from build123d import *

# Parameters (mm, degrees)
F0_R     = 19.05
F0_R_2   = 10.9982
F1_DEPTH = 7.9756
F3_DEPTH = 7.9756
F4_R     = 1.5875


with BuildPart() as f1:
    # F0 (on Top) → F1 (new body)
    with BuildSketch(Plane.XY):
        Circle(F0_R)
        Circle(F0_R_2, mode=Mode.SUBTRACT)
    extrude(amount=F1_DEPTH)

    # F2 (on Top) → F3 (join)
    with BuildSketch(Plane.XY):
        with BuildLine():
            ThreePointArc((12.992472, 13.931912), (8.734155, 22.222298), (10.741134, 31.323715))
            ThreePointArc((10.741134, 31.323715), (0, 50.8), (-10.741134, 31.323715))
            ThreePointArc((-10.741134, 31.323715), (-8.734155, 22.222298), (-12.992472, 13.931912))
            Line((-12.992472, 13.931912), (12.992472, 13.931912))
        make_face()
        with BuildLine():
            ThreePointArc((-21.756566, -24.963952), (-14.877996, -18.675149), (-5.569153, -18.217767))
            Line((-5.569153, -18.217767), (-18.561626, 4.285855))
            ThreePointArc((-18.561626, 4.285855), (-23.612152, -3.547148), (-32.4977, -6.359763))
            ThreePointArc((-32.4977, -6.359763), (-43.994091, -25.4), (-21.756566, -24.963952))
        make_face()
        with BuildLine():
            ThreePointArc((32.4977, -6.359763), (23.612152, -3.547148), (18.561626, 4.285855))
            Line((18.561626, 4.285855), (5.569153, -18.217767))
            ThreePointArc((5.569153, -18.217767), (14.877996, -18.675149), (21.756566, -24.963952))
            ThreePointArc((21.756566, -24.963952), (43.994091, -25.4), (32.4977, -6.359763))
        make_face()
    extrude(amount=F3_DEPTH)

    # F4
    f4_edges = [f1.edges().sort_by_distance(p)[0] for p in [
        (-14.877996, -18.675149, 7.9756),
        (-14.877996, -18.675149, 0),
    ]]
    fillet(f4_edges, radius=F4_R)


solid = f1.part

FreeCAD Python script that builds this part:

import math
import FreeCAD as App
import Part
import Sketcher
from FreeCAD import Vector
Q = App.Units.Quantity


def edges_at(feature, points):
    """Names of the edges that pass closest to the given points."""
    edges = feature.Shape.Edges
    near = lambda p: min(range(len(edges)), key=lambda i: edges[i].distToShape(Part.Vertex(*p))[0])
    return sorted({f"Edge{near(p) + 1}" for p in points})

doc = App.newDocument("Part")
body = doc.addObject("PartDesign::Body", "Body")

# Sketch on XY plane
sketch1 = body.newObject("Sketcher::SketchObject", "Sketch")
sketch1.AttachmentSupport = (doc.getObject("XY_Plane"), [""])
sketch1.MapMode = "FlatFace"
sketch1.addGeometry(Part.Circle(Vector(0, 0, 0), Vector(0, 0, 1), 19.05), False)
sketch1.addGeometry(Part.Circle(Vector(0, 0, 0), Vector(0, 0, 1), 10.9982), False)
sketch1.addConstraint(Sketcher.Constraint("Coincident", 0, 3, -1, 1))
sketch1.addConstraint(Sketcher.Constraint("Coincident", 1, 3, -1, 1))
sketch1.addConstraint(Sketcher.Constraint("Diameter", 0, Q("1.5 in")))
sketch1.addConstraint(Sketcher.Constraint("Diameter", 1, Q("0.866 in")))
pad1 = body.newObject("PartDesign::Pad", "Pad")
pad1.Profile = sketch1
pad1.Length = Q("0.314 in")

# Sketch on XY plane
sketch2 = body.newObject("Sketcher::SketchObject", "Sketch001")
sketch2.AttachmentSupport = (doc.getObject("XY_Plane"), [""])
sketch2.MapMode = "FlatFace"
sketch2.addGeometry(Part.ArcOfCircle(Part.Circle(Vector(22.369933, 23.987425, 0), Vector(0, 0, 1), 13.74955), math.radians(147.753299), math.radians(226.998343)), False)
sketch2.addGeometry(Part.ArcOfCircle(Part.Circle(Vector(0, 38.1, 0), Vector(0, 0, 1), 12.7), math.radians(-32.246697), math.radians(212.246697)), False)
sketch2.addGeometry(Part.ArcOfCircle(Part.Circle(Vector(-22.369933, 23.987425, 0), Vector(0, 0, 1), 13.74955), math.radians(-46.998343), math.radians(32.246701)), False)
sketch2.addGeometry(Part.LineSegment(Vector(-12.992472, 13.931912, 0), Vector(12.992472, 13.931912, 0)), False)
sketch2.addGeometry(Part.ArcOfCircle(Part.Circle(Vector(-9.588752, -31.366645, 0), Vector(0, 0, 1), 13.749552), math.radians(73.001659), math.radians(152.246694)), False)
sketch2.addGeometry(Part.LineSegment(Vector(-5.569153, -18.217767, 0), Vector(-18.561626, 4.285855, 0)), False)
sketch2.addGeometry(Part.ArcOfCircle(Part.Circle(Vector(-31.958688, 7.37922, 0), Vector(0, 0, 1), 13.749552), math.radians(-92.246692), math.radians(-13.001663)), False)
sketch2.addGeometry(Part.ArcOfCircle(Part.Circle(Vector(-32.995568, -19.05, 0), Vector(0, 0, 1), 12.7), math.radians(87.753302), math.radians(332.2467)), False)
sketch2.addGeometry(Part.ArcOfCircle(Part.Circle(Vector(31.958688, 7.37922, 0), Vector(0, 0, 1), 13.749552), math.radians(-166.998337), math.radians(-87.753308)), False)
sketch2.addGeometry(Part.LineSegment(Vector(18.561626, 4.285855, 0), Vector(5.569153, -18.217767, 0)), False)
sketch2.addGeometry(Part.ArcOfCircle(Part.Circle(Vector(9.588752, -31.366645, 0), Vector(0, 0, 1), 13.749552), math.radians(27.753306), math.radians(106.998341)), False)
sketch2.addGeometry(Part.ArcOfCircle(Part.Circle(Vector(32.995568, -19.05, 0), Vector(0, 0, 1), 12.7), math.radians(-152.2467), math.radians(92.246698)), False)
sketch2.addConstraint(Sketcher.Constraint("Tangent", 0, 1, 1, 1))
sketch2.addConstraint(Sketcher.Constraint("Tangent", 1, 2, 2, 2))
sketch2.addConstraint(Sketcher.Constraint("Coincident", 2, 1, 3, 1))
sketch2.addConstraint(Sketcher.Constraint("Coincident", 3, 2, 0, 2))
sketch2.addConstraint(Sketcher.Constraint("Coincident", 4, 1, 5, 1))
sketch2.addConstraint(Sketcher.Constraint("Coincident", 5, 2, 6, 2))
sketch2.addConstraint(Sketcher.Constraint("Tangent", 6, 1, 7, 1))
sketch2.addConstraint(Sketcher.Constraint("Tangent", 7, 2, 4, 2))
sketch2.addConstraint(Sketcher.Constraint("Coincident", 8, 1, 9, 1))
sketch2.addConstraint(Sketcher.Constraint("Coincident", 9, 2, 10, 2))
sketch2.addConstraint(Sketcher.Constraint("Tangent", 10, 1, 11, 1))
sketch2.addConstraint(Sketcher.Constraint("Tangent", 11, 2, 8, 2))
sketch2.addConstraint(Sketcher.Constraint("Horizontal", 3))
sketch2.addConstraint(Sketcher.Constraint("Equal", 0, 2))
sketch2.addConstraint(Sketcher.Constraint("Equal", 2, 4))
sketch2.addConstraint(Sketcher.Constraint("Equal", 4, 6))
sketch2.addConstraint(Sketcher.Constraint("Equal", 1, 7))
sketch2.addConstraint(Sketcher.Constraint("Equal", 6, 8))
sketch2.addConstraint(Sketcher.Constraint("Equal", 8, 10))
sketch2.addConstraint(Sketcher.Constraint("Equal", 7, 11))
sketch2.addConstraint(Sketcher.Constraint("Symmetric", 0, 3, 2, 3, -2))
sketch2.addConstraint(Sketcher.Constraint("Symmetric", 6, 3, 8, 3, -2))
sketch2.addConstraint(Sketcher.Constraint("Symmetric", 4, 3, 10, 3, -2))
sketch2.addConstraint(Sketcher.Constraint("Horizontal", 5, 2, 8, 1))
sketch2.addConstraint(Sketcher.Constraint("Horizontal", 4, 1, 9, 2))
sketch2.addConstraint(Sketcher.Constraint("Radius", 1, Q("0.5 in")))
sketch2.addConstraint(Sketcher.Constraint("Angle", 5, Q("120.000001 deg")))
sketch2.addConstraint(Sketcher.Constraint("DistanceY", -1, 1, 1, 3, Q("1.5 in")))
sketch2.addConstraint(Sketcher.Constraint("DistanceY", 7, 3, -1, 1, Q("0.75 in")))
sketch2.addConstraint(Sketcher.Constraint("Radius", 0, Q("13.74955 mm")))
sketch2.addConstraint(Sketcher.Constraint("DistanceX", 6, 1, -1, 1, Q("32.4977 mm")))
sketch2.addConstraint(Sketcher.Constraint("DistanceX", 7, 3, 0, 3, Q("55.365502 mm")))
sketch2.addConstraint(Sketcher.Constraint("DistanceX", 0, 1, 0, 3, Q("11.628799 mm")))
sketch2.addConstraint(Sketcher.Constraint("DistanceX", 4, 3, 4, 1, Q("4.019599 mm")))
sketch2.addConstraint(Sketcher.Constraint("DistanceX", 3, 1, 3, 2, Q("25.984944 mm")))
sketch2.addConstraint(Sketcher.Constraint("DistanceY", 7, 2, -1, 1, Q("24.963952 mm")))
pad2 = body.newObject("PartDesign::Pad", "Pad001")
pad2.Profile = sketch2
pad2.Length = Q("0.314 in")
doc.recompute()

fillet = body.newObject("PartDesign::Fillet", "Fillet")
fillet.Base = (pad2, edges_at(pad2, [(-14.878, -18.675, 7.976), (-14.878, -18.675, 0)]))
fillet.Radius = Q("0.0625 in")

doc.recompute()
